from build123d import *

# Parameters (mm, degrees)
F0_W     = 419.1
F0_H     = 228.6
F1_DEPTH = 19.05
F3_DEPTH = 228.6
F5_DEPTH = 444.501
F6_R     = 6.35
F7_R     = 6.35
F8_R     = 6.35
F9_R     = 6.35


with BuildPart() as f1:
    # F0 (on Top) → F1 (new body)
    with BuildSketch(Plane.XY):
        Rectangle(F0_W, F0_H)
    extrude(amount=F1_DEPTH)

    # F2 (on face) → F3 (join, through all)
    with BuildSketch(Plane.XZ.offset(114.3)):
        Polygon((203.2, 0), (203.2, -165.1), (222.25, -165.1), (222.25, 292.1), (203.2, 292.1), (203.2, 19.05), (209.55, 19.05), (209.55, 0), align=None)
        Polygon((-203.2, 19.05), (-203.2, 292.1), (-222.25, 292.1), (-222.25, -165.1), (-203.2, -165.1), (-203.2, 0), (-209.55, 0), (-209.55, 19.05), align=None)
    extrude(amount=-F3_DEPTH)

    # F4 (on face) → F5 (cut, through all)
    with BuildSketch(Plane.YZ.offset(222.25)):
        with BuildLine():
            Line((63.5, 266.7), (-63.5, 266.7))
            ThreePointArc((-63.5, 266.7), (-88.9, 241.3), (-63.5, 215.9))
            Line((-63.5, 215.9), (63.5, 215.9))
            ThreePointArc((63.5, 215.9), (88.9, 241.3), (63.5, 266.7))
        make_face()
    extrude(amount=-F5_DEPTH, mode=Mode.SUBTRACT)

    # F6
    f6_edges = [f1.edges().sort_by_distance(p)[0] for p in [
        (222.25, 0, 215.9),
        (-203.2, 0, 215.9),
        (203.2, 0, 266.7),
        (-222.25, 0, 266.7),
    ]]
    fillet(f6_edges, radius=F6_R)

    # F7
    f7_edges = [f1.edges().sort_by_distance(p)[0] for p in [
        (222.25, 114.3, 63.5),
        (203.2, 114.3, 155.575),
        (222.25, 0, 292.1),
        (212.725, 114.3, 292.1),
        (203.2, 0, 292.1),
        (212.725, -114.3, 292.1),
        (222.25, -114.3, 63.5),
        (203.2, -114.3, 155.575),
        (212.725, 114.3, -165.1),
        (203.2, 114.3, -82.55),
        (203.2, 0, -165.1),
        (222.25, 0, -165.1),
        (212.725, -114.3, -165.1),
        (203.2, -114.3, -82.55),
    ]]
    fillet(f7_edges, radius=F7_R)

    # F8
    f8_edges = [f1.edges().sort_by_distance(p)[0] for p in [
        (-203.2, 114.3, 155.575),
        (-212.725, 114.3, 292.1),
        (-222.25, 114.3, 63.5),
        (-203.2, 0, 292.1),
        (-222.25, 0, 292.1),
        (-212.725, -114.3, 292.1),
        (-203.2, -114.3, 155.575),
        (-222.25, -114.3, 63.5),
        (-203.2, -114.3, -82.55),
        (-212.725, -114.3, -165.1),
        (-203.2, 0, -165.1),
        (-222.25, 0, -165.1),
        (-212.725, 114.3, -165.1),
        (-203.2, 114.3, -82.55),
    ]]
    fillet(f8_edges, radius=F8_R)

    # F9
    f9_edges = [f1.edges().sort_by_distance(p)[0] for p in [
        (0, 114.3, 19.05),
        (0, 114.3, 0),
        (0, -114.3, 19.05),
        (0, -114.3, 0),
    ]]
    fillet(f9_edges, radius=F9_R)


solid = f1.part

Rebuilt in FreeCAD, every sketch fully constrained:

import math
import FreeCAD as App
import Part
import Sketcher
from FreeCAD import Vector
Q = App.Units.Quantity


def edges_at(feature, points):
    """Names of the edges that pass closest to the given points."""
    edges = feature.Shape.Edges
    near = lambda p: min(range(len(edges)), key=lambda i: edges[i].distToShape(Part.Vertex(*p))[0])
    return sorted({f"Edge{near(p) + 1}" for p in points})

doc = App.newDocument("Part")
body = doc.addObject("PartDesign::Body", "Body")

# Sketch on XY plane
sketch1 = doc.addObject("Sketcher::SketchObject", "Sketch")
body.addObject(sketch1)
sketch1.AttachmentSupport = (doc.XY_Plane, [""])
sketch1.MapMode = "FlatFace"
sketch1.addGeometry(Part.LineSegment(Vector(-209.55, 114.3, 0), Vector(-209.55, -114.3, 0)), False)
sketch1.addGeometry(Part.LineSegment(Vector(-209.55, -114.3, 0), Vector(209.55, -114.3, 0)), False)
sketch1.addGeometry(Part.LineSegment(Vector(209.55, -114.3, 0), Vector(209.55, 114.3, 0)), False)
sketch1.addGeometry(Part.LineSegment(Vector(209.55, 114.3, 0), Vector(-209.55, 114.3, 0)), False)
sketch1.addConstraint(Sketcher.Constraint("Coincident", 0, 2, 1, 1))
sketch1.addConstraint(Sketcher.Constraint("Coincident", 1, 2, 2, 1))
sketch1.addConstraint(Sketcher.Constraint("Coincident", 2, 2, 3, 1))
sketch1.addConstraint(Sketcher.Constraint("Coincident", 3, 2, 0, 1))
sketch1.addConstraint(Sketcher.Constraint("Vertical", 0))
sketch1.addConstraint(Sketcher.Constraint("Horizontal", 1))
sketch1.addConstraint(Sketcher.Constraint("Vertical", 2))
sketch1.addConstraint(Sketcher.Constraint("Horizontal", 3))
sketch1.addConstraint(Sketcher.Constraint("Symmetric", 0, 2, 2, 2, -1, 1))
sketch1.addConstraint(Sketcher.Constraint("DistanceY", 0, 2, 0, 1, Q("9 in")))
sketch1.addConstraint(Sketcher.Constraint("DistanceX", 1, 1, 1, 2, Q("16.5 in")))
pad1 = doc.addObject("PartDesign::Pad", "Pad")
body.addObject(pad1)
pad1.Profile = sketch1
pad1.Length = Q("0.75 in")

# Sketch on XZ plane
sketch2 = doc.addObject("Sketcher::SketchObject", "Sketch001")
body.addObject(sketch2)
sketch2.AttachmentSupport = (doc.XZ_Plane, [""])
sketch2.MapMode = "FlatFace"
sketch2.AttachmentOffset = App.Placement(Vector(0, 0, 4.5 * 25.4), App.Rotation())
sketch2.addGeometry(Part.LineSegment(Vector(203.2, 0, 0), Vector(203.2, -165.1, 0)), False)
sketch2.addGeometry(Part.LineSegment(Vector(203.2, -165.1, 0), Vector(222.25, -165.1, 0)), False)
sketch2.addGeometry(Part.LineSegment(Vector(222.25, -165.1, 0), Vector(222.25, 292.1, 0)), False)
sketch2.addGeometry(Part.LineSegment(Vector(222.25, 292.1, 0), Vector(203.2, 292.1, 0)), False)
sketch2.addGeometry(Part.LineSegment(Vector(203.2, 292.1, 0), Vector(203.2, 19.05, 0)), False)
sketch2.addGeometry(Part.LineSegment(Vector(203.2, 19.05, 0), Vector(209.55, 19.05, 0)), False)
sketch2.addGeometry(Part.LineSegment(Vector(209.55, 19.05, 0), Vector(209.55, 0, 0)), False)
sketch2.addGeometry(Part.LineSegment(Vector(209.55, 0, 0), Vector(203.2, 0, 0)), False)
sketch2.addGeometry(Part.LineSegment(Vector(-203.2, 19.05, 0), Vector(-203.2, 292.1, 0)), False)
sketch2.addGeometry(Part.LineSegment(Vector(-203.2, 292.1, 0), Vector(-222.25, 292.1, 0)), False)
sketch2.addGeometry(Part.LineSegment(Vector(-222.25, 292.1, 0), Vector(-222.25, -165.1, 0)), False)
sketch2.addGeometry(Part.LineSegment(Vector(-222.25, -165.1, 0), Vector(-203.2, -165.1, 0)), False)
sketch2.addGeometry(Part.LineSegment(Vector(-203.2, -165.1, 0), Vector(-203.2, 0, 0)), False)
sketch2.addGeometry(Part.LineSegment(Vector(-203.2, 0, 0), Vector(-209.55, 0, 0)), False)
sketch2.addGeometry(Part.LineSegment(Vector(-209.55, 0, 0), Vector(-209.55, 19.05, 0)), False)
sketch2.addGeometry(Part.LineSegment(Vector(-209.55, 19.05, 0), Vector(-203.2, 19.05, 0)), False)
sketch2.addConstraint(Sketcher.Constraint("Coincident", 0, 2, 1, 1))
sketch2.addConstraint(Sketcher.Constraint("Coincident", 1, 2, 2, 1))
sketch2.addConstraint(Sketcher.Constraint("Coincident", 2, 2, 3, 1))
sketch2.addConstraint(Sketcher.Constraint("Coincident", 3, 2, 4, 1))
sketch2.addConstraint(Sketcher.Constraint("Coincident", 4, 2, 5, 1))
sketch2.addConstraint(Sketcher.Constraint("Coincident", 5, 2, 6, 1))
sketch2.addConstraint(Sketcher.Constraint("Coincident", 6, 2, 7, 1))
sketch2.addConstraint(Sketcher.Constraint("Coincident", 7, 2, 0, 1))
sketch2.addConstraint(Sketcher.Constraint("Coincident", 8, 2, 9, 1))
sketch2.addConstraint(Sketcher.Constraint("Coincident", 9, 2, 10, 1))
sketch2.addConstraint(Sketcher.Constraint("Coincident", 10, 2, 11, 1))
sketch2.addConstraint(Sketcher.Constraint("Coincident", 11, 2, 12, 1))
sketch2.addConstraint(Sketcher.Constraint("Coincident", 12, 2, 13, 1))
sketch2.addConstraint(Sketcher.Constraint("Coincident", 13, 2, 14, 1))
sketch2.addConstraint(Sketcher.Constraint("Coincident", 14, 2, 15, 1))
sketch2.addConstraint(Sketcher.Constraint("Coincident", 15, 2, 8, 1))
sketch2.addConstraint(Sketcher.Constraint("Vertical", 0))
sketch2.addConstraint(Sketcher.Constraint("Horizontal", 1))
sketch2.addConstraint(Sketcher.Constraint("Vertical", 2))
sketch2.addConstraint(Sketcher.Constraint("Horizontal", 3))
sketch2.addConstraint(Sketcher.Constraint("Vertical", 4))
sketch2.addConstraint(Sketcher.Constraint("Horizontal", 5))
sketch2.addConstraint(Sketcher.Constraint("Vertical", 6))
sketch2.addConstraint(Sketcher.Constraint("Horizontal", 7))
sketch2.addConstraint(Sketcher.Constraint("Vertical", 8))
sketch2.addConstraint(Sketcher.Constraint("Horizontal", 9))
sketch2.addConstraint(Sketcher.Constraint("Vertical", 10))
sketch2.addConstraint(Sketcher.Constraint("Horizontal", 11))
sketch2.addConstraint(Sketcher.Constraint("Vertical", 12))
sketch2.addConstraint(Sketcher.Constraint("Horizontal", 13))
sketch2.addConstraint(Sketcher.Constraint("Vertical", 14))
sketch2.addConstraint(Sketcher.Constraint("Horizontal", 15))
sketch2.addConstraint(Sketcher.Constraint("Symmetric", 7, 2, 12, 2, -1, 1))
sketch2.addConstraint(Sketcher.Constraint("Symmetric", 3, 2, 8, 2, -2))
sketch2.addConstraint(Sketcher.Constraint("Symmetric", 1, 2, 10, 2, -2))
sketch2.addConstraint(Sketcher.Constraint("Symmetric", 6, 2, 13, 2, -2))
sketch2.addConstraint(Sketcher.Constraint("Horizontal", 5, 2, 14, 2))
sketch2.addConstraint(Sketcher.Constraint("Vertical", 0, 2, 3, 2))
sketch2.addConstraint(Sketcher.Constraint("Equal", 11, 6))
sketch2.addConstraint(Sketcher.Constraint("DistanceY", 2, 1, 2, 2, Q("18 in")))
sketch2.addConstraint(Sketcher.Constraint("DistanceY", 0, 2, 0, 1, Q("6.5 in")))
sketch2.addConstraint(Sketcher.Constraint("DistanceX", -1, 1, 0, 2, Q("8 in")))
sketch2.addConstraint(Sketcher.Constraint("DistanceX", 9, 2, 5, 2, Q("17 in")))
sketch2.addConstraint(Sketcher.Constraint("DistanceX", 1, 1, 1, 2, Q("0.75 in")))
pad2 = doc.addObject("PartDesign::Pad", "Pad001")
body.addObject(pad2)
pad2.Profile = sketch2
pad2.Length = Q("9 in")
pad2.Reversed = True

# Sketch on YZ plane
sketch3 = doc.addObject("Sketcher::SketchObject", "Sketch002")
body.addObject(sketch3)
sketch3.AttachmentSupport = (doc.YZ_Plane, [""])
sketch3.MapMode = "FlatFace"
sketch3.AttachmentOffset = App.Placement(Vector(0, 0, 8.75 * 25.4), App.Rotation())
sketch3.addGeometry(Part.LineSegment(Vector(63.5, 266.7, 0), Vector(-63.5, 266.7, 0)), False)
sketch3.addGeometry(Part.ArcOfCircle(Part.Circle(Vector(-63.5, 241.3, 0), Vector(0, 0, 1), 25.4), math.radians(90), math.radians(270)), False)
sketch3.addGeometry(Part.LineSegment(Vector(-63.5, 215.9, 0), Vector(63.5, 215.9, 0)), False)
sketch3.addGeometry(Part.ArcOfCircle(Part.Circle(Vector(63.5, 241.3, 0), Vector(0, 0, 1), 25.4), math.radians(-90), math.radians(90)), False)
sketch3.addConstraint(Sketcher.Constraint("Tangent", 0, 2, 1, 1))
sketch3.addConstraint(Sketcher.Constraint("Tangent", 1, 2, 2, 1))
sketch3.addConstraint(Sketcher.Constraint("Tangent", 2, 2, 3, 1))
sketch3.addConstraint(Sketcher.Constraint("Tangent", 3, 2, 0, 1))
sketch3.addConstraint(Sketcher.Constraint("Horizontal", 0))
sketch3.addConstraint(Sketcher.Constraint("Horizontal", 2))
sketch3.addConstraint(Sketcher.Constraint("Radius", 1, Q("1 in")))
sketch3.addConstraint(Sketcher.Constraint("DistanceX", 0, 2, 0, 1, Q("5 in")))
sketch3.addConstraint(Sketcher.Constraint("DistanceX", 1, 3, -1, 1, Q("2.5 in")))
sketch3.addConstraint(Sketcher.Constraint("DistanceY", -1, 1, 1, 3, Q("9.5 in")))
pocket1 = doc.addObject("PartDesign::Pocket", "Pocket")
body.addObject(pocket1)
pocket1.Profile = sketch3
pocket1.Type = "ThroughAll"
doc.recompute()

fillet = doc.addObject("PartDesign::Fillet", "Fillet")
body.addObject(fillet)
fillet.Base = (pocket1, edges_at(pocket1, [
    (222.25, 0, 215.9),
    (-203.2, 0, 215.9),
    (203.2, 0, 266.7),
    (-222.25, 0, 266.7),
]))
fillet.Radius = Q("0.25 in")
doc.recompute()

fillet2 = doc.addObject("PartDesign::Fillet", "Fillet001")
body.addObject(fillet2)
fillet2.Base = (fillet, edges_at(fillet, [
    (222.25, 114.3, 63.5),
    (203.2, 114.3, 155.575),
    (222.25, 0, 292.1),
    (212.725, 114.3, 292.1),
    (203.2, 0, 292.1),
    (212.725, -114.3, 292.1),
    (222.25, -114.3, 63.5),
    (203.2, -114.3, 155.575),
    (212.725, 114.3, -165.1),
    (203.2, 114.3, -82.55),
    (203.2, 0, -165.1),
    (222.25, 0, -165.1),
    (212.725, -114.3, -165.1),
    (203.2, -114.3, -82.55),
]))
fillet2.Radius = Q("0.25 in")
doc.recompute()

fillet3 = doc.addObject("PartDesign::Fillet", "Fillet002")
body.addObject(fillet3)
fillet3.Base = (fillet2, edges_at(fillet2, [
    (-203.2, 114.3, 155.575),
    (-212.725, 114.3, 292.1),
    (-222.25, 114.3, 63.5),
    (-203.2, 0, 292.1),
    (-222.25, 0, 292.1),
    (-212.725, -114.3, 292.1),
    (-203.2, -114.3, 155.575),
    (-222.25, -114.3, 63.5),
    (-203.2, -114.3, -82.55),
    (-212.725, -114.3, -165.1),
    (-203.2, 0, -165.1),
    (-222.25, 0, -165.1),
    (-212.725, 114.3, -165.1),
    (-203.2, 114.3, -82.55),
]))
fillet3.Radius = Q("0.25 in")
doc.recompute()

fillet4 = doc.addObject("PartDesign::Fillet", "Fillet003")
body.addObject(fillet4)
fillet4.Base = (fillet3, edges_at(fillet3, [
    (0, 114.3, 19.05),
    (0, 114.3, 0),
    (0, -114.3, 19.05),
    (0, -114.3, 0),
]))
fillet4.Radius = Q("0.25 in")

doc.recompute()
